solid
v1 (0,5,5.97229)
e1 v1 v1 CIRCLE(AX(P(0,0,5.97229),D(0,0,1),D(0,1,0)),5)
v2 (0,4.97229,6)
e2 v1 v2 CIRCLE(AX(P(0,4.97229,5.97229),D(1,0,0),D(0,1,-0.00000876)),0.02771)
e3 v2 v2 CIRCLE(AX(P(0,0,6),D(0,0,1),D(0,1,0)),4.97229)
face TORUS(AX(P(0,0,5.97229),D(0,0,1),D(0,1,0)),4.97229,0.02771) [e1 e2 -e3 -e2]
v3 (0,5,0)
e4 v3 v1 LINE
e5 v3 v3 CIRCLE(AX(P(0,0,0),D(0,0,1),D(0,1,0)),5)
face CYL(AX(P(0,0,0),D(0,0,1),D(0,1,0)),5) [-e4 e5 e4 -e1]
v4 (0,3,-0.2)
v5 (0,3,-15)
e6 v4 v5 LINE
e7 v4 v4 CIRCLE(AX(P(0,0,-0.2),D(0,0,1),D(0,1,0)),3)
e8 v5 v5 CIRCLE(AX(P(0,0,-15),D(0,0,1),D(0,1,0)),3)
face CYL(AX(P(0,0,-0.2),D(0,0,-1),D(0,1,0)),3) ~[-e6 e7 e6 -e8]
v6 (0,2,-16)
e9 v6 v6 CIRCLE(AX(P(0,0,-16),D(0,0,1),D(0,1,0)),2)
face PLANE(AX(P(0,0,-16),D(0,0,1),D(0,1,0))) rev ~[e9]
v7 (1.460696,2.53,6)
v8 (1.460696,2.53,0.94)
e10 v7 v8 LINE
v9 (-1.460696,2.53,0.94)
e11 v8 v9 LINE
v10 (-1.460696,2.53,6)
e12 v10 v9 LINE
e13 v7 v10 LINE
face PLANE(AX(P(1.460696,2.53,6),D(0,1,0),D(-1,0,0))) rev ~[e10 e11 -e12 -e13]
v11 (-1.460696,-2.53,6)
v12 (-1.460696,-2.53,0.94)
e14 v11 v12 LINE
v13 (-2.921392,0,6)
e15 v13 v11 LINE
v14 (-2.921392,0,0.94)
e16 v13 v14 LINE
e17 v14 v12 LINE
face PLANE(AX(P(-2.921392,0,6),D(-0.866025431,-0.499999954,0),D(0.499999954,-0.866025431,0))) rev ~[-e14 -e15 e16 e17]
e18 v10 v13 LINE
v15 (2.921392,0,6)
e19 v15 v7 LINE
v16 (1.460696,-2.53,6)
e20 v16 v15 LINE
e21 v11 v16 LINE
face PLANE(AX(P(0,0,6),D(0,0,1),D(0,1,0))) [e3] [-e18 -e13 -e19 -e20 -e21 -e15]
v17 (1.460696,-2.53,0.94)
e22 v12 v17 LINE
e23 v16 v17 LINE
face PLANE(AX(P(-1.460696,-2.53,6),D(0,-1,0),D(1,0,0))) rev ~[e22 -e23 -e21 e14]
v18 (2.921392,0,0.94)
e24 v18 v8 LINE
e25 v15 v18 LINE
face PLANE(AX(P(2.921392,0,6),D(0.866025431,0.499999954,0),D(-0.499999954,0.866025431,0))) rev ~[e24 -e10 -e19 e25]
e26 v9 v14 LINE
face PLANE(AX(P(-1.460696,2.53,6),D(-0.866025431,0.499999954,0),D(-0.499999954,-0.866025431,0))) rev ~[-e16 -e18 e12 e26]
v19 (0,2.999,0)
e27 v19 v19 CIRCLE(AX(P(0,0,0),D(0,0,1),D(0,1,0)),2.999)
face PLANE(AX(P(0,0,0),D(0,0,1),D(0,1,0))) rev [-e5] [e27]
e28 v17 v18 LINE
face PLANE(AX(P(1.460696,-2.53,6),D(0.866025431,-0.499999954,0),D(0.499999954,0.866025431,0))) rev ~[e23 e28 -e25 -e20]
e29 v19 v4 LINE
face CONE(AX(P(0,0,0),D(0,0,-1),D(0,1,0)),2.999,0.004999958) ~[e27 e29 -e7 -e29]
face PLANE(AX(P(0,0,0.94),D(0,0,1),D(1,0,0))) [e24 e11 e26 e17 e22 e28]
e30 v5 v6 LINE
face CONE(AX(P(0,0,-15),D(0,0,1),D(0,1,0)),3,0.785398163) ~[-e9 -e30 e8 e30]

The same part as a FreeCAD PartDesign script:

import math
import FreeCAD as App
import Part
import Sketcher
from FreeCAD import Vector
Q = App.Units.Quantity

doc = App.newDocument("Part")
params = doc.addObject("Spreadsheet::Sheet", "Params")
for row, (alias, value) in enumerate([
    ("sketch1_width", "2 mm"),
    ("sketch1_height", "22 mm"),
    ("sketch1_height2", "14.8 mm"),
    ("revolution_angle", "360 deg"),
    ("pocket1_length", "5.06 mm"),
], start=1):
    params.set(f"A{row}", alias)
    params.set(f"B{row}", "=" + value)
    params.setAlias(f"B{row}", alias)

body = doc.addObject("PartDesign::Body", "Body")

# Sketch on YZ plane
sketch1 = body.newObject("Sketcher::SketchObject", "Sketch")
sketch1.AttachmentSupport = (doc.getObject("YZ_Plane"), [""])
sketch1.MapMode = "FlatFace"
sketch1.addGeometry([
    Part.LineSegment(Vector(2.999, 0, 0), Vector(5, 0, 0)),  # 0
    Part.LineSegment(Vector(5, 0, 0), Vector(5, 5.972, 0)),  # 1
    Part.ArcOfCircle(Part.Circle(Vector(4.972, 5.972, 0), Vector(0, 0, 1), 0.028), math.radians(0), math.radians(90)),  # 2
    Part.LineSegment(Vector(4.972, 6, 0), Vector(0, 6, 0)),  # 3
    Part.LineSegment(Vector(0, 6, 0), Vector(0, -16, 0)),  # 4
    Part.LineSegment(Vector(0, -16, 0), Vector(2, -16, 0)),  # 5
    Part.LineSegment(Vector(2, -16, 0), Vector(3, -15, 0)),  # 6
    Part.LineSegment(Vector(3, -15, 0), Vector(3, -0.2, 0)),  # 7
    Part.LineSegment(Vector(3, -0.2, 0), Vector(2.999, 0, 0)),  # 8
], False)
sketch1.addConstraint([
    Sketcher.Constraint("Coincident", 0, 2, 1, 1),
    Sketcher.Constraint("Coincident", 1, 2, 2, 1),
    Sketcher.Constraint("Coincident", 2, 2, 3, 1),
    Sketcher.Constraint("Coincident", 3, 2, 4, 1),
    Sketcher.Constraint("Coincident", 4, 2, 5, 1),
    Sketcher.Constraint("Coincident", 5, 2, 6, 1),
    Sketcher.Constraint("Coincident", 6, 2, 7, 1),
    Sketcher.Constraint("Coincident", 7, 2, 8, 1),
    Sketcher.Constraint("Coincident", 8, 2, 0, 1),
    Sketcher.Constraint("Horizontal", 0),
    Sketcher.Constraint("Vertical", 1),
    Sketcher.Constraint("Horizontal", 3),
    Sketcher.Constraint("Vertical", 4),
    Sketcher.Constraint("Horizontal", 5),
    Sketcher.Constraint("Vertical", 7),
    Sketcher.Constraint("PointOnObject", 0, 2, -1),
    Sketcher.Constraint("PointOnObject", 3, 2, -2),
    Sketcher.Constraint("Horizontal", 2, 3, 1, 2),
    Sketcher.Constraint("DistanceX", 5, 1, 5, 2, 2.0),
    Sketcher.Constraint("DistanceY", 4, 2, 4, 1, 22.0),
    Sketcher.Constraint("Angle", 6, Q("45 deg")),
    Sketcher.Constraint("DistanceY", 7, 1, 7, 2, 14.8),
    Sketcher.Constraint("DistanceX", -1, 1, 0, 2, 5.0),
    Sketcher.Constraint("DistanceY", -1, 1, 2, 2, 6.0),
    Sketcher.Constraint("DistanceX", -1, 1, 6, 2, 3.0),
    Sketcher.Constraint("DistanceX", 0, 1, 0, 2, 2.001),
    Sketcher.Constraint("Radius", 2, 0.02771),
    Sketcher.Constraint("DistanceX", 3, 2, 3, 1, 4.97229),
])
sketch1.setExpression("Constraints[18]", "Params.sketch1_width")
sketch1.setExpression("Constraints[19]", "Params.sketch1_height")
sketch1.setExpression("Constraints[21]", "Params.sketch1_height2")
revolution = body.newObject("PartDesign::Revolution", "Revolution")
revolution.Profile = sketch1
revolution.ReferenceAxis = (sketch1, ["V_Axis"])
revolution.setExpression("Angle", "Params.revolution_angle")

# Sketch on XY plane
sketch2 = body.newObject("Sketcher::SketchObject", "Sketch001")
sketch2.AttachmentSupport = (doc.getObject("XY_Plane"), [""])
sketch2.MapMode = "FlatFace"
sketch2.AttachmentOffset = App.Placement(Vector(0, 0, 6), App.Rotation())
sketch2.addGeometry([
    Part.LineSegment(Vector(2.9, 0, 0), Vector(1.5, 2.5, 0)),  # 0
    Part.LineSegment(Vector(1.5, 2.5, 0), Vector(-1.5, 2.5, 0)),  # 1
    Part.LineSegment(Vector(-1.5, 2.5, 0), Vector(-2.9, 0, 0)),  # 2
    Part.LineSegment(Vector(-2.9, 0, 0), Vector(-1.5, -2.5, 0)),  # 3
    Part.LineSegment(Vector(-1.5, -2.5, 0), Vector(1.5, -2.5, 0)),  # 4
    Part.LineSegment(Vector(1.5, -2.5, 0), Vector(2.9, 0, 0)),  # 5
], False)
sketch2.addConstraint([
    Sketcher.Constraint("Coincident", 0, 2, 1, 1),
    Sketcher.Constraint("Coincident", 1, 2, 2, 1),
    Sketcher.Constraint("Coincident", 2, 2, 3, 1),
    Sketcher.Constraint("Coincident", 3, 2, 4, 1),
    Sketcher.Constraint("Coincident", 4, 2, 5, 1),
    Sketcher.Constraint("Coincident", 5, 2, 0, 1),
    Sketcher.Constraint("Horizontal", 1),
    Sketcher.Constraint("Horizontal", 4),
    Sketcher.Constraint("Symmetric", 0, 2, 3, 2, -1, 1),
    Sketcher.Constraint("Symmetric", 2, 2, 5, 2, -1, 1),
    Sketcher.Constraint("PointOnObject", 2, 2, -1),
    Sketcher.Constraint("Parallel", 2, 5),
    Sketcher.Constraint("Vertical", 1, 2, 3, 2),
    Sketcher.Constraint("Angle", 0, Q("119.999997 deg")),
    Sketcher.Constraint("DistanceY", -1, 1, 0, 2, 2.53),
    Sketcher.Constraint("DistanceX", 1, 2, 1, 1, 2.921392),
])
pocket1 = body.newObject("PartDesign::Pocket", "Pocket")
pocket1.Profile = sketch2
pocket1.setExpression("Length", "Params.pocket1_length")

doc.recompute()
